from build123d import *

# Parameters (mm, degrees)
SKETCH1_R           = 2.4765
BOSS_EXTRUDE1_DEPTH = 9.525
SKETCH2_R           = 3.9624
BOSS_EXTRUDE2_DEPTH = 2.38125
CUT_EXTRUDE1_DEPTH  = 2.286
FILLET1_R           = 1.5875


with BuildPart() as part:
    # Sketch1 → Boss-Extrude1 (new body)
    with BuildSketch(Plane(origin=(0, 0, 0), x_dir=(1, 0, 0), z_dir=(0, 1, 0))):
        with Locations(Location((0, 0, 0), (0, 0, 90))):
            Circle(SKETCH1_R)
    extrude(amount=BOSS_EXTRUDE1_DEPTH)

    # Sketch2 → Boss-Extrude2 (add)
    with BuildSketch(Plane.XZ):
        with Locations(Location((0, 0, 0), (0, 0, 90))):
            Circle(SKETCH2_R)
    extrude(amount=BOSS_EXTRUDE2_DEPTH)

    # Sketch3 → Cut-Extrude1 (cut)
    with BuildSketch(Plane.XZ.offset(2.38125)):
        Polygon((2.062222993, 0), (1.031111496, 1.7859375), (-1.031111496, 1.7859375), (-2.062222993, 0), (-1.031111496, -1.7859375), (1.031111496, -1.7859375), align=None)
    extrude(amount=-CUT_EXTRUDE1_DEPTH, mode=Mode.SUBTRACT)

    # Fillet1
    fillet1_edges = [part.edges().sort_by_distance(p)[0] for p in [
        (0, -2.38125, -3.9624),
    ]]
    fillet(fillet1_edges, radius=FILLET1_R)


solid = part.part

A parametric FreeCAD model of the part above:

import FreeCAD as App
import Part
import Sketcher
Q = App.Units.Quantity


def edges_at(feature, points):
    """Names of the edges that pass closest to the given points."""
    edges = feature.Shape.Edges
    near = lambda p: min(range(len(edges)), key=lambda i: edges[i].distToShape(Part.Vertex(*p))[0])
    return sorted({f"Edge{near(p) + 1}" for p in points})


def add_polygon(sketch, points):
    """Adds a closed chain of lines whose ends are joined by coincident constraints."""
    first, n = sketch.GeometryCount, len(points)
    for a, b in zip(points, points[1:] + points[:1]):
        sketch.addGeometry(Part.LineSegment(App.Vector(*a, 0), App.Vector(*b, 0)), False)
    for i in range(n):
        sketch.addConstraint(Sketcher.Constraint("Coincident", first + i, 2, first + (i + 1) % n, 1))

doc = App.newDocument("Part")
body = doc.addObject("PartDesign::Body", "Body")

sketch1 = body.newObject("Sketcher::SketchObject", "Sketch")
sketch1.AttachmentSupport = (doc.getObject("XZ_Plane"), [""])
sketch1.MapMode = "FlatFace"
sketch1.addGeometry(Part.Circle(App.Vector(0, 0, 0), App.Vector(0, 0, 1), 2.5), False)
sketch1.addConstraint([
    Sketcher.Constraint("Coincident", 0, 3, -1, 1),
    Sketcher.Constraint("Diameter", 0, Q("0.195 in")),
])
pad1 = body.newObject("PartDesign::Pad", "Pad")
pad1.Profile = sketch1
pad1.Length = Q("0.375 in")
pad1.Reversed = True

sketch2 = body.newObject("Sketcher::SketchObject", "Sketch001")
sketch2.AttachmentSupport = (doc.getObject("XZ_Plane"), [""])
sketch2.MapMode = "FlatFace"
sketch2.addGeometry(Part.Circle(App.Vector(0, 0, 0), App.Vector(0, 0, 1), 4), False)
sketch2.addConstraint([
    Sketcher.Constraint("Coincident", 0, 3, -1, 1),
    Sketcher.Constraint("Diameter", 0, Q("0.312 in")),
])
pad2 = body.newObject("PartDesign::Pad", "Pad001")
pad2.Profile = sketch2
pad2.Length = Q("0.09375 in")

sketch3 = body.newObject("Sketcher::SketchObject", "Sketch002")
sketch3.AttachmentSupport = (doc.getObject("XZ_Plane"), [""])
sketch3.MapMode = "FlatFace"
sketch3.AttachmentOffset = App.Placement(App.Vector(0, 0, 0.09375 * 25.4), App.Rotation())
add_polygon(sketch3, [(2.1, 0), (1, 1.8), (-1, 1.8), (-2.1, 0), (-1, -1.8), (1, -1.8)])
sketch3.addConstraint([
    Sketcher.Constraint("Horizontal", 1),
    Sketcher.Constraint("Horizontal", 4),
    Sketcher.Constraint("Symmetric", 0, 2, 3, 2, -1, 1),
    Sketcher.Constraint("Symmetric", 2, 2, 5, 2, -1, 1),
    Sketcher.Constraint("PointOnObject", 2, 2, -1),
    Sketcher.Constraint("Parallel", 2, 5),
    Sketcher.Constraint("Vertical", 1, 2, 3, 2),
    Sketcher.Constraint("Angle", 0, Q("120 deg")),
    Sketcher.Constraint("DistanceY", 3, 2, 1, 2, Q("0.140625 in")),
    Sketcher.Constraint("DistanceX", 1, 2, 1, 1, Q("2.062223 mm")),
])
pocket1 = body.newObject("PartDesign::Pocket", "Pocket")
pocket1.Profile = sketch3
pocket1.Length = Q("0.09 in")
doc.recompute()

fillet = body.newObject("PartDesign::Fillet", "Fillet")
fillet.Base = (pocket1, edges_at(pocket1, [(0, -2.381, -3.962)]))
fillet.Radius = Q("0.0625 in")

doc.recompute()
